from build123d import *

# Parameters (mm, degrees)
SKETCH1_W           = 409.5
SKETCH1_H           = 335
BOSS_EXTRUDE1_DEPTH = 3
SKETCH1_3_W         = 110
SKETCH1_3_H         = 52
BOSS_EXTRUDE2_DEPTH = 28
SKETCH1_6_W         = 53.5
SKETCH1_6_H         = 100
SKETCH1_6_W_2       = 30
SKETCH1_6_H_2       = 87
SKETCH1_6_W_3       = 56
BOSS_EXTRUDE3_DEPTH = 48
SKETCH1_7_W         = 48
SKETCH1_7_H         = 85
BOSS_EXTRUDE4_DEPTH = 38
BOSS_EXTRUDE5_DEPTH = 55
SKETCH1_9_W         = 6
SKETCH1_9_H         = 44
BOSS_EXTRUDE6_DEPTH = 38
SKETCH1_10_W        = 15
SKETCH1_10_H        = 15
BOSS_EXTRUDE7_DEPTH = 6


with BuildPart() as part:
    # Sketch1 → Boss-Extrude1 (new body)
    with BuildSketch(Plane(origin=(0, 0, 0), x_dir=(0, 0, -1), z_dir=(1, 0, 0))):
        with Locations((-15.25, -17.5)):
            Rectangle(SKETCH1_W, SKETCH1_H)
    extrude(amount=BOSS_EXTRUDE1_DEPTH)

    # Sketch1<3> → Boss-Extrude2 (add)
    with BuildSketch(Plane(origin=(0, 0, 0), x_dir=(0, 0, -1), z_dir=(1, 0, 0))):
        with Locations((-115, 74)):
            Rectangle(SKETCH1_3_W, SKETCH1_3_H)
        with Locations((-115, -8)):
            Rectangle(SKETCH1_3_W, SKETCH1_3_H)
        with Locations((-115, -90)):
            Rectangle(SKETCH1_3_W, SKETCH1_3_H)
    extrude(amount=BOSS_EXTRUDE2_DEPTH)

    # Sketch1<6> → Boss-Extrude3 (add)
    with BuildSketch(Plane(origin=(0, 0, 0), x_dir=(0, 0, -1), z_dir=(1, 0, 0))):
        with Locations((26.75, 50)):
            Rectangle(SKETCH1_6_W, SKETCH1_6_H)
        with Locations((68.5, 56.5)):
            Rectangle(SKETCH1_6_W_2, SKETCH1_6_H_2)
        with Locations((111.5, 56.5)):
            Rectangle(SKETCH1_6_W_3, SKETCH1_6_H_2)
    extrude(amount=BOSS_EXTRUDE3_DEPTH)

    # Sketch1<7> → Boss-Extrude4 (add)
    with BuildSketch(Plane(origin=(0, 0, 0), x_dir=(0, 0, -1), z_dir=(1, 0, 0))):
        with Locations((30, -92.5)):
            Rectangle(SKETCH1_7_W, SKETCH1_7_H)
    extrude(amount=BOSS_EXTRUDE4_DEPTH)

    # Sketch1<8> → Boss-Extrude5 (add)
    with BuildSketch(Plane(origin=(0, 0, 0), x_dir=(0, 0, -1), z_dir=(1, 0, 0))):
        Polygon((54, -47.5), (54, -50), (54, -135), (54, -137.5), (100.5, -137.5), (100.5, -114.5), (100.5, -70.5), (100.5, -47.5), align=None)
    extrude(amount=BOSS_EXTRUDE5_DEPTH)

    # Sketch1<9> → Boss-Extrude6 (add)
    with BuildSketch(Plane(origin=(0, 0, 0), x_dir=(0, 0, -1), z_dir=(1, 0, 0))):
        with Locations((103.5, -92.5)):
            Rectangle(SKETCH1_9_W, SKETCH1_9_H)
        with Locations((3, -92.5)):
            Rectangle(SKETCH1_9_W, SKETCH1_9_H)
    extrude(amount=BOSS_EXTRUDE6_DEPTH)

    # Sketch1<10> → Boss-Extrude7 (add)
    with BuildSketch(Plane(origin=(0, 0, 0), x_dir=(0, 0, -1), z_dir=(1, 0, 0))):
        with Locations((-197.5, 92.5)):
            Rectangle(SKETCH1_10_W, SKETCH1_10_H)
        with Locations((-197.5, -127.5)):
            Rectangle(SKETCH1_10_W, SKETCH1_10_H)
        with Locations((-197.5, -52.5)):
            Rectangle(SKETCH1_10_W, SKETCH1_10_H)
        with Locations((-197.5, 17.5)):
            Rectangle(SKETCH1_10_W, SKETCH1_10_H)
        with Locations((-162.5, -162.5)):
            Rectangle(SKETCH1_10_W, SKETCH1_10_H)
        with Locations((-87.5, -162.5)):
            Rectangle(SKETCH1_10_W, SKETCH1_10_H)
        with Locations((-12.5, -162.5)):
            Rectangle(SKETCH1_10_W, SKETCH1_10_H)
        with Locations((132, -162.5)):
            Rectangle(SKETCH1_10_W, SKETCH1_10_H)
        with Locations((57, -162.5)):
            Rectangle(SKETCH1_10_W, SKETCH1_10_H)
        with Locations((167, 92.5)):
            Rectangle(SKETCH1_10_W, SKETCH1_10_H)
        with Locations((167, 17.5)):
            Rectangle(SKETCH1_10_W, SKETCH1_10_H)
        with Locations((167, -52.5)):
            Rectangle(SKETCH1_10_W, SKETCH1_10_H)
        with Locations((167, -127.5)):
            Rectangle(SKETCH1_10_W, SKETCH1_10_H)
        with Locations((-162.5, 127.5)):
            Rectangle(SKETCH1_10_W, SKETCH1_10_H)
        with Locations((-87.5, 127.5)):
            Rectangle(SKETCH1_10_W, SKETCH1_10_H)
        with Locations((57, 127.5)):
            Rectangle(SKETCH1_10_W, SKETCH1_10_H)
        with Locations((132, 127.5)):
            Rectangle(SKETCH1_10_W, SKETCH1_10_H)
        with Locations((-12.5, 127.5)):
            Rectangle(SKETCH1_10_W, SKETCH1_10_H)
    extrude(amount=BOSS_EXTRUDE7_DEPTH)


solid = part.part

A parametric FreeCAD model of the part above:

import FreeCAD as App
import Part
import Sketcher

V = App.Vector


def add_polygon(sketch, points):
    """Adds a closed chain of lines whose ends are joined by coincident constraints."""
    first, n = sketch.GeometryCount, len(points)
    for a, b in zip(points, points[1:] + points[:1]):
        sketch.addGeometry(Part.LineSegment(App.Vector(*a, 0), App.Vector(*b, 0)), False)
    for i in range(n):
        sketch.addConstraint(Sketcher.Constraint("Coincident", first + i, 2, first + (i + 1) % n, 1))

doc = App.newDocument("Part")
body = doc.addObject("PartDesign::Body", "Body")

sketch1 = body.newObject("Sketcher::SketchObject", "Sketch")
sketch1.AttachmentSupport = (doc.getObject("YZ_Plane"), [""])
sketch1.MapMode = "FlatFace"
add_polygon(sketch1, [(150, 220), (-185, 220), (-185, -190), (150, -190)])
sketch1.addConstraint([
    Sketcher.Constraint("Horizontal", 0),
    Sketcher.Constraint("Vertical", 1),
    Sketcher.Constraint("Horizontal", 2),
    Sketcher.Constraint("Vertical", 3),
    Sketcher.Constraint("DistanceX", 0, 2, 0, 1, 335.0),
    Sketcher.Constraint("DistanceY", 1, 2, 1, 1, 409.5),
    Sketcher.Constraint("DistanceX", 0, 2, -1, 1, 185.0),
    Sketcher.Constraint("DistanceY", -1, 1, 0, 2, 220.0),
])
pad1 = body.newObject("PartDesign::Pad", "Pad")
pad1.Profile = sketch1
pad1.Length = 3

sketch2 = body.newObject("Sketcher::SketchObject", "Sketch001")
sketch2.AttachmentSupport = (doc.getObject("YZ_Plane"), [""])
sketch2.MapMode = "FlatFace"
add_polygon(sketch2, [(100, 170), (48, 170), (48, 60), (100, 60)])
add_polygon(sketch2, [(18, 170), (-34, 170), (-34, 60), (18, 60)])
add_polygon(sketch2, [(-64, 170), (-116, 170), (-116, 60), (-64, 60)])
sketch2.addConstraint([
    Sketcher.Constraint("Horizontal", 0),
    Sketcher.Constraint("Vertical", 1),
    Sketcher.Constraint("Horizontal", 2),
    Sketcher.Constraint("Vertical", 3),
    Sketcher.Constraint("Horizontal", 4),
    Sketcher.Constraint("Vertical", 5),
    Sketcher.Constraint("Horizontal", 6),
    Sketcher.Constraint("Vertical", 7),
    Sketcher.Constraint("Horizontal", 8),
    Sketcher.Constraint("Vertical", 9),
    Sketcher.Constraint("Horizontal", 10),
    Sketcher.Constraint("Vertical", 11),
    Sketcher.Constraint("Horizontal", 3, 2, 4, 2),
    Sketcher.Constraint("Horizontal", 2, 2, 5, 2),
    Sketcher.Constraint("Horizontal", 7, 2, 8, 2),
    Sketcher.Constraint("Horizontal", 6, 2, 9, 2),
    Sketcher.Constraint("Equal", 2, 4),
    Sketcher.Constraint("Equal", 6, 8),
    Sketcher.Constraint("DistanceX", 0, 2, 0, 1, 52.0),
    Sketcher.Constraint("DistanceY", 1, 2, 1, 1, 110.0),
    Sketcher.Constraint("DistanceX", -1, 1, 0, 2, 48.0),
    Sketcher.Constraint("DistanceY", -1, 1, 0, 2, 170.0),
    Sketcher.Constraint("DistanceX", 4, 2, -1, 1, 34.0),
    Sketcher.Constraint("DistanceX", 8, 2, -1, 1, 116.0),
])
pad2 = body.newObject("PartDesign::Pad", "Pad001")
pad2.Profile = sketch2
pad2.Length = 28

sketch3 = body.newObject("Sketcher::SketchObject", "Sketch002")
sketch3.AttachmentSupport = (doc.getObject("YZ_Plane"), [""])
sketch3.MapMode = "FlatFace"
add_polygon(sketch3, [(100, 0), (0, 0), (0, -54), (13, -54), (13, -140), (100, -140)])
sketch3.addConstraint([
    Sketcher.Constraint("Horizontal", 0),
    Sketcher.Constraint("Vertical", 1),
    Sketcher.Constraint("Horizontal", 2),
    Sketcher.Constraint("Vertical", 3),
    Sketcher.Constraint("Horizontal", 4),
    Sketcher.Constraint("Vertical", 5),
    Sketcher.Constraint("Coincident", 0, 2, -1, 1),
    Sketcher.Constraint("DistanceX", 0, 2, 0, 1, 100.0),
    Sketcher.Constraint("DistanceX", 2, 1, 2, 2, 13.0),
    Sketcher.Constraint("DistanceY", 3, 2, 3, 1, 86.0),
    Sketcher.Constraint("DistanceY", 1, 2, 1, 1, 53.5),
])
pad3 = body.newObject("PartDesign::Pad", "Pad002")
pad3.Profile = sketch3
pad3.Length = 48

sketch4 = body.newObject("Sketcher::SketchObject", "Sketch003")
sketch4.AttachmentSupport = (doc.getObject("YZ_Plane"), [""])
sketch4.MapMode = "FlatFace"
add_polygon(sketch4, [(-50, -6), (-135, -6), (-135, -54), (-50, -54)])
sketch4.addConstraint([
    Sketcher.Constraint("Horizontal", 0),
    Sketcher.Constraint("Vertical", 1),
    Sketcher.Constraint("Horizontal", 2),
    Sketcher.Constraint("Vertical", 3),
    Sketcher.Constraint("DistanceX", 0, 2, 0, 1, 85.0),
    Sketcher.Constraint("DistanceY", 1, 2, 1, 1, 48.0),
    Sketcher.Constraint("DistanceX", 0, 2, -1, 1, 135.0),
    Sketcher.Constraint("DistanceY", 0, 2, -1, 1, 6.0),
])
pad4 = body.newObject("PartDesign::Pad", "Pad003")
pad4.Profile = sketch4
pad4.Length = 38

sketch5 = body.newObject("Sketcher::SketchObject", "Sketch004")
sketch5.AttachmentSupport = (doc.getObject("YZ_Plane"), [""])
sketch5.MapMode = "FlatFace"
add_polygon(sketch5, [(-48, -54), (-138, -54), (-138, -100), (-48, -100)])
sketch5.addConstraint([
    Sketcher.Constraint("Horizontal", 0),
    Sketcher.Constraint("Vertical", 1),
    Sketcher.Constraint("Horizontal", 2),
    Sketcher.Constraint("Vertical", 3),
    Sketcher.Constraint("DistanceX", 0, 2, 0, 1, 90.0),
    Sketcher.Constraint("DistanceY", 1, 2, 1, 1, 46.5),
    Sketcher.Constraint("DistanceY", 0, 2, -1, 1, 54.0),
    Sketcher.Constraint("DistanceX", 0, 2, -1, 1, 137.5),
])
pad5 = body.newObject("PartDesign::Pad", "Pad004")
pad5.Profile = sketch5
pad5.Length = 55

sketch6 = body.newObject("Sketcher::SketchObject", "Sketch005")
sketch6.AttachmentSupport = (doc.getObject("YZ_Plane"), [""])
sketch6.MapMode = "FlatFace"
add_polygon(sketch6, [(-70, -100), (-114, -100), (-114, -106), (-70, -106)])
add_polygon(sketch6, [(-70, 0), (-114, 0), (-114, -6), (-70, -6)])
sketch6.addConstraint([
    Sketcher.Constraint("Horizontal", 0),
    Sketcher.Constraint("Vertical", 1),
    Sketcher.Constraint("Horizontal", 2),
    Sketcher.Constraint("Vertical", 3),
    Sketcher.Constraint("Horizontal", 4),
    Sketcher.Constraint("Vertical", 5),
    Sketcher.Constraint("Horizontal", 6),
    Sketcher.Constraint("Vertical", 7),
    Sketcher.Constraint("PointOnObject", 4, 2, -1),
    Sketcher.Constraint("Vertical", 1, 2, 4, 2),
    Sketcher.Constraint("Vertical", 3, 2, 6, 2),
    Sketcher.Constraint("Equal", 3, 5),
    Sketcher.Constraint("DistanceX", 0, 2, 0, 1, 44.0),
    Sketcher.Constraint("DistanceY", 1, 2, 1, 1, 6.0),
    Sketcher.Constraint("DistanceX", 0, 2, -1, 1, 114.5),
    Sketcher.Constraint("DistanceY", 0, 2, -1, 1, 100.5),
])
pad6 = body.newObject("PartDesign::Pad", "Pad005")
pad6.Profile = sketch6
pad6.Length = 38

sketch7 = body.newObject("Sketcher::SketchObject", "Sketch006")
sketch7.AttachmentSupport = (doc.getObject("YZ_Plane"), [""])
sketch7.MapMode = "FlatFace"
add_polygon(sketch7, [(100, 205), (85, 205), (85, 190), (100, 190)])
add_polygon(sketch7, [(-120, 205), (-135, 205), (-135, 190), (-120, 190)])
add_polygon(sketch7, [(-45, 205), (-60, 205), (-60, 190), (-45, 190)])
add_polygon(sketch7, [(25, 205), (10, 205), (10, 190), (25, 190)])
add_polygon(sketch7, [(-155, 170), (-170, 170), (-170, 155), (-155, 155)])
add_polygon(sketch7, [(-155, 95), (-170, 95), (-170, 80), (-155, 80)])
add_polygon(sketch7, [(-155, 20), (-170, 20), (-170, 5), (-155, 5)])
add_polygon(sketch7, [(-155, -124), (-170, -124), (-170, -140), (-155, -140)])
add_polygon(sketch7, [(-155, -50), (-170, -50), (-170, -64), (-155, -64)])
add_polygon(sketch7, [(100, -160), (85, -160), (85, -174), (100, -174)])
add_polygon(sketch7, [(25, -160), (10, -160), (10, -174), (25, -174)])
add_polygon(sketch7, [(-45, -160), (-60, -160), (-60, -174), (-45, -174)])
add_polygon(sketch7, [(-120, -160), (-135, -160), (-135, -174), (-120, -174)])
add_polygon(sketch7, [(135, 170), (120, 170), (120, 155), (135, 155)])
add_polygon(sketch7, [(135, 95), (120, 95), (120, 80), (135, 80)])
add_polygon(sketch7, [(135, -50), (120, -50), (120, -64), (135, -64)])
add_polygon(sketch7, [(135, -124), (120, -124), (120, -140), (135, -140)])
add_polygon(sketch7, [(135, 20), (120, 20), (120, 5), (135, 5)])
sketch7.addConstraint([
    Sketcher.Constraint("Horizontal", 0),
    Sketcher.Constraint("Vertical", 1),
    Sketcher.Constraint("Horizontal", 2),
    Sketcher.Constraint("Vertical", 3),
    Sketcher.Constraint("Horizontal", 4),
    Sketcher.Constraint("Vertical", 5),
    Sketcher.Constraint("Horizontal", 6),
    Sketcher.Constraint("Vertical", 7),
    Sketcher.Constraint("Horizontal", 8),
    Sketcher.Constraint("Vertical", 9),
    Sketcher.Constraint("Horizontal", 10),
    Sketcher.Constraint("Vertical", 11),
    Sketcher.Constraint("Horizontal", 12),
    Sketcher.Constraint("Vertical", 13),
    Sketcher.Constraint("Horizontal", 14),
    Sketcher.Constraint("Vertical", 15),
    Sketcher.Constraint("Horizontal", 16),
    Sketcher.Constraint("Vertical", 17),
    Sketcher.Constraint("Horizontal", 18),
    Sketcher.Constraint("Vertical", 19),
    Sketcher.Constraint("Horizontal", 20),
    Sketcher.Constraint("Vertical", 21),
    Sketcher.Constraint("Horizontal", 22),
    Sketcher.Constraint("Vertical", 23),
    Sketcher.Constraint("Horizontal", 24),
    Sketcher.Constraint("Vertical", 25),
    Sketcher.Constraint("Horizontal", 26),
    Sketcher.Constraint("Vertical", 27),
    Sketcher.Constraint("Horizontal", 28),
    Sketcher.Constraint("Vertical", 29),
    Sketcher.Constraint("Horizontal", 30),
    Sketcher.Constraint("Vertical", 31),
    Sketcher.Constraint("Horizontal", 32),
    Sketcher.Constraint("Vertical", 33),
    Sketcher.Constraint("Horizontal", 34),
    Sketcher.Constraint("Vertical", 35),
    Sketcher.Constraint("Horizontal", 36),
    Sketcher.Constraint("Vertical", 37),
    Sketcher.Constraint("Horizontal", 38),
    Sketcher.Constraint("Vertical", 39),
    Sketcher.Constraint("Horizontal", 40),
    Sketcher.Constraint("Vertical", 41),
    Sketcher.Constraint("Horizontal", 42),
    Sketcher.Constraint("Vertical", 43),
    Sketcher.Constraint("Horizontal", 44),
    Sketcher.Constraint("Vertical", 45),
    Sketcher.Constraint("Horizontal", 46),
    Sketcher.Constraint("Vertical", 47),
    Sketcher.Constraint("Horizontal", 48),
    Sketcher.Constraint("Vertical", 49),
    Sketcher.Constraint("Horizontal", 50),
    Sketcher.Constraint("Vertical", 51),
    Sketcher.Constraint("Horizontal", 52),
    Sketcher.Constraint("Vertical", 53),
    Sketcher.Constraint("Horizontal", 54),
    Sketcher.Constraint("Vertical", 55),
    Sketcher.Constraint("Horizontal", 56),
    Sketcher.Constraint("Vertical", 57),
    Sketcher.Constraint("Horizontal", 58),
    Sketcher.Constraint("Vertical", 59),
    Sketcher.Constraint("Horizontal", 60),
    Sketcher.Constraint("Vertical", 61),
    Sketcher.Constraint("Horizontal", 62),
    Sketcher.Constraint("Vertical", 63),
    Sketcher.Constraint("Horizontal", 64),
    Sketcher.Constraint("Vertical", 65),
    Sketcher.Constraint("Horizontal", 66),
    Sketcher.Constraint("Vertical", 67),
    Sketcher.Constraint("Horizontal", 68),
    Sketcher.Constraint("Vertical", 69),
    Sketcher.Constraint("Horizontal", 70),
    Sketcher.Constraint("Vertical", 71),
    Sketcher.Constraint("Horizontal", 3, 2, 4, 2),
    Sketcher.Constraint("Horizontal", 2, 2, 5, 2),
    Sketcher.Constraint("Horizontal", 7, 2, 8, 2),
    Sketcher.Constraint("Horizontal", 6, 2, 9, 2),
    Sketcher.Constraint("Horizontal", 11, 2, 12, 2),
    Sketcher.Constraint("Horizontal", 10, 2, 13, 2),
    Sketcher.Constraint("Horizontal", 39, 2, 40, 2),
    Sketcher.Constraint("Horizontal", 38, 2, 41, 2),
    Sketcher.Constraint("Horizontal", 43, 2, 44, 2),
    Sketcher.Constraint("Horizontal", 42, 2, 45, 2),
    Sketcher.Constraint("Horizontal", 47, 2, 48, 2),
    Sketcher.Constraint("Horizontal", 46, 2, 49, 2),
    Sketcher.Constraint("Horizontal", 19, 2, 52, 2),
    Sketcher.Constraint("Horizontal", 18, 2, 53, 2),
    Sketcher.Constraint("Horizontal", 23, 2, 56, 2),
    Sketcher.Constraint("Horizontal", 22, 2, 57, 2),
    Sketcher.Constraint("Horizontal", 35, 2, 60, 2),
    Sketcher.Constraint("Horizontal", 34, 2, 61, 2),
    Sketcher.Constraint("Horizontal", 31, 2, 64, 2),
    Sketcher.Constraint("Horizontal", 30, 2, 65, 2),
    Sketcher.Constraint("Horizontal", 27, 2, 68, 2),
    Sketcher.Constraint("Horizontal", 26, 2, 69, 2),
    Sketcher.Constraint("Vertical", 17, 2, 20, 2),
    Sketcher.Constraint("Vertical", 19, 2, 22, 2),
    Sketcher.Constraint("Vertical", 21, 2, 24, 2),
    Sketcher.Constraint("Vertical", 23, 2, 26, 2),
    Sketcher.Constraint("Vertical", 25, 2, 28, 2),
    Sketcher.Constraint("Vertical", 27, 2, 30, 2),
    Sketcher.Constraint("Vertical", 29, 2, 32, 2),
    Sketcher.Constraint("Vertical", 31, 2, 34, 2),
    Sketcher.Constraint("Vertical", 1, 2, 36, 2),
    Sketcher.Constraint("Vertical", 3, 2, 38, 2),
    Sketcher.Constraint("Vertical", 13, 2, 40, 2),
    Sketcher.Constraint("Vertical", 15, 2, 42, 2),
    Sketcher.Constraint("Vertical", 9, 2, 44, 2),
    Sketcher.Constraint("Vertical", 11, 2, 46, 2),
    Sketcher.Constraint("Vertical", 5, 2, 48, 2),
    Sketcher.Constraint("Vertical", 7, 2, 50, 2),
    Sketcher.Constraint("Vertical", 53, 2, 56, 2),
    Sketcher.Constraint("Vertical", 55, 2, 58, 2),
    Sketcher.Constraint("Vertical", 57, 2, 60, 2),
    Sketcher.Constraint("Vertical", 59, 2, 62, 2),
    Sketcher.Constraint("Vertical", 61, 2, 64, 2),
    Sketcher.Constraint("Vertical", 63, 2, 66, 2),
    Sketcher.Constraint("Vertical", 65, 2, 68, 2),
    Sketcher.Constraint("Vertical", 67, 2, 70, 2),
    Sketcher.Constraint("Equal", 2, 4),
    Sketcher.Constraint("Equal", 6, 8),
    Sketcher.Constraint("Equal", 10, 12),
    Sketcher.Constraint("Equal", 14, 16),
    Sketcher.Constraint("Equal", 50, 52),
    Sketcher.Constraint("Equal", 70, 1),
    Sketcher.Constraint("Equal", 15, 17),
    Sketcher.Constraint("Equal", 19, 21),
    Sketcher.Constraint("Equal", 23, 25),
    Sketcher.Constraint("Equal", 27, 29),
    Sketcher.Constraint("Equal", 31, 33),
    Sketcher.Constraint("Equal", 35, 37),
    Sketcher.Constraint("DistanceX", 0, 2, 0, 1, 15.0),
    Sketcher.Constraint("DistanceX", -1, 1, 0, 2, 85.0),
    Sketcher.Constraint("DistanceY", -1, 1, 0, 2, 205.0),
    Sketcher.Constraint("DistanceX", 4, 2, -1, 1, 135.0),
    Sketcher.Constraint("DistanceX", 8, 2, -1, 1, 60.0),
    Sketcher.Constraint("DistanceX", -1, 1, 12, 2, 10.0),
    Sketcher.Constraint("DistanceX", 16, 2, -1, 1, 170.0),
    Sketcher.Constraint("DistanceY", -1, 1, 16, 2, 170.0),
    Sketcher.Constraint("DistanceY", -1, 1, 20, 2, 95.0),
    Sketcher.Constraint("DistanceY", -1, 1, 24, 2, 20.0),
    Sketcher.Constraint("DistanceX", -1, 1, 52, 2, 120.0),
    Sketcher.Constraint("DistanceY", 28, 2, -1, 1, 124.5),
    Sketcher.Constraint("DistanceY", 32, 2, -1, 1, 49.5),
    Sketcher.Constraint("DistanceY", 36, 2, -1, 1, 159.5),
])
pad7 = body.newObject("PartDesign::Pad", "Pad006")
pad7.Profile = sketch7
pad7.Length = 6

doc.recompute()
